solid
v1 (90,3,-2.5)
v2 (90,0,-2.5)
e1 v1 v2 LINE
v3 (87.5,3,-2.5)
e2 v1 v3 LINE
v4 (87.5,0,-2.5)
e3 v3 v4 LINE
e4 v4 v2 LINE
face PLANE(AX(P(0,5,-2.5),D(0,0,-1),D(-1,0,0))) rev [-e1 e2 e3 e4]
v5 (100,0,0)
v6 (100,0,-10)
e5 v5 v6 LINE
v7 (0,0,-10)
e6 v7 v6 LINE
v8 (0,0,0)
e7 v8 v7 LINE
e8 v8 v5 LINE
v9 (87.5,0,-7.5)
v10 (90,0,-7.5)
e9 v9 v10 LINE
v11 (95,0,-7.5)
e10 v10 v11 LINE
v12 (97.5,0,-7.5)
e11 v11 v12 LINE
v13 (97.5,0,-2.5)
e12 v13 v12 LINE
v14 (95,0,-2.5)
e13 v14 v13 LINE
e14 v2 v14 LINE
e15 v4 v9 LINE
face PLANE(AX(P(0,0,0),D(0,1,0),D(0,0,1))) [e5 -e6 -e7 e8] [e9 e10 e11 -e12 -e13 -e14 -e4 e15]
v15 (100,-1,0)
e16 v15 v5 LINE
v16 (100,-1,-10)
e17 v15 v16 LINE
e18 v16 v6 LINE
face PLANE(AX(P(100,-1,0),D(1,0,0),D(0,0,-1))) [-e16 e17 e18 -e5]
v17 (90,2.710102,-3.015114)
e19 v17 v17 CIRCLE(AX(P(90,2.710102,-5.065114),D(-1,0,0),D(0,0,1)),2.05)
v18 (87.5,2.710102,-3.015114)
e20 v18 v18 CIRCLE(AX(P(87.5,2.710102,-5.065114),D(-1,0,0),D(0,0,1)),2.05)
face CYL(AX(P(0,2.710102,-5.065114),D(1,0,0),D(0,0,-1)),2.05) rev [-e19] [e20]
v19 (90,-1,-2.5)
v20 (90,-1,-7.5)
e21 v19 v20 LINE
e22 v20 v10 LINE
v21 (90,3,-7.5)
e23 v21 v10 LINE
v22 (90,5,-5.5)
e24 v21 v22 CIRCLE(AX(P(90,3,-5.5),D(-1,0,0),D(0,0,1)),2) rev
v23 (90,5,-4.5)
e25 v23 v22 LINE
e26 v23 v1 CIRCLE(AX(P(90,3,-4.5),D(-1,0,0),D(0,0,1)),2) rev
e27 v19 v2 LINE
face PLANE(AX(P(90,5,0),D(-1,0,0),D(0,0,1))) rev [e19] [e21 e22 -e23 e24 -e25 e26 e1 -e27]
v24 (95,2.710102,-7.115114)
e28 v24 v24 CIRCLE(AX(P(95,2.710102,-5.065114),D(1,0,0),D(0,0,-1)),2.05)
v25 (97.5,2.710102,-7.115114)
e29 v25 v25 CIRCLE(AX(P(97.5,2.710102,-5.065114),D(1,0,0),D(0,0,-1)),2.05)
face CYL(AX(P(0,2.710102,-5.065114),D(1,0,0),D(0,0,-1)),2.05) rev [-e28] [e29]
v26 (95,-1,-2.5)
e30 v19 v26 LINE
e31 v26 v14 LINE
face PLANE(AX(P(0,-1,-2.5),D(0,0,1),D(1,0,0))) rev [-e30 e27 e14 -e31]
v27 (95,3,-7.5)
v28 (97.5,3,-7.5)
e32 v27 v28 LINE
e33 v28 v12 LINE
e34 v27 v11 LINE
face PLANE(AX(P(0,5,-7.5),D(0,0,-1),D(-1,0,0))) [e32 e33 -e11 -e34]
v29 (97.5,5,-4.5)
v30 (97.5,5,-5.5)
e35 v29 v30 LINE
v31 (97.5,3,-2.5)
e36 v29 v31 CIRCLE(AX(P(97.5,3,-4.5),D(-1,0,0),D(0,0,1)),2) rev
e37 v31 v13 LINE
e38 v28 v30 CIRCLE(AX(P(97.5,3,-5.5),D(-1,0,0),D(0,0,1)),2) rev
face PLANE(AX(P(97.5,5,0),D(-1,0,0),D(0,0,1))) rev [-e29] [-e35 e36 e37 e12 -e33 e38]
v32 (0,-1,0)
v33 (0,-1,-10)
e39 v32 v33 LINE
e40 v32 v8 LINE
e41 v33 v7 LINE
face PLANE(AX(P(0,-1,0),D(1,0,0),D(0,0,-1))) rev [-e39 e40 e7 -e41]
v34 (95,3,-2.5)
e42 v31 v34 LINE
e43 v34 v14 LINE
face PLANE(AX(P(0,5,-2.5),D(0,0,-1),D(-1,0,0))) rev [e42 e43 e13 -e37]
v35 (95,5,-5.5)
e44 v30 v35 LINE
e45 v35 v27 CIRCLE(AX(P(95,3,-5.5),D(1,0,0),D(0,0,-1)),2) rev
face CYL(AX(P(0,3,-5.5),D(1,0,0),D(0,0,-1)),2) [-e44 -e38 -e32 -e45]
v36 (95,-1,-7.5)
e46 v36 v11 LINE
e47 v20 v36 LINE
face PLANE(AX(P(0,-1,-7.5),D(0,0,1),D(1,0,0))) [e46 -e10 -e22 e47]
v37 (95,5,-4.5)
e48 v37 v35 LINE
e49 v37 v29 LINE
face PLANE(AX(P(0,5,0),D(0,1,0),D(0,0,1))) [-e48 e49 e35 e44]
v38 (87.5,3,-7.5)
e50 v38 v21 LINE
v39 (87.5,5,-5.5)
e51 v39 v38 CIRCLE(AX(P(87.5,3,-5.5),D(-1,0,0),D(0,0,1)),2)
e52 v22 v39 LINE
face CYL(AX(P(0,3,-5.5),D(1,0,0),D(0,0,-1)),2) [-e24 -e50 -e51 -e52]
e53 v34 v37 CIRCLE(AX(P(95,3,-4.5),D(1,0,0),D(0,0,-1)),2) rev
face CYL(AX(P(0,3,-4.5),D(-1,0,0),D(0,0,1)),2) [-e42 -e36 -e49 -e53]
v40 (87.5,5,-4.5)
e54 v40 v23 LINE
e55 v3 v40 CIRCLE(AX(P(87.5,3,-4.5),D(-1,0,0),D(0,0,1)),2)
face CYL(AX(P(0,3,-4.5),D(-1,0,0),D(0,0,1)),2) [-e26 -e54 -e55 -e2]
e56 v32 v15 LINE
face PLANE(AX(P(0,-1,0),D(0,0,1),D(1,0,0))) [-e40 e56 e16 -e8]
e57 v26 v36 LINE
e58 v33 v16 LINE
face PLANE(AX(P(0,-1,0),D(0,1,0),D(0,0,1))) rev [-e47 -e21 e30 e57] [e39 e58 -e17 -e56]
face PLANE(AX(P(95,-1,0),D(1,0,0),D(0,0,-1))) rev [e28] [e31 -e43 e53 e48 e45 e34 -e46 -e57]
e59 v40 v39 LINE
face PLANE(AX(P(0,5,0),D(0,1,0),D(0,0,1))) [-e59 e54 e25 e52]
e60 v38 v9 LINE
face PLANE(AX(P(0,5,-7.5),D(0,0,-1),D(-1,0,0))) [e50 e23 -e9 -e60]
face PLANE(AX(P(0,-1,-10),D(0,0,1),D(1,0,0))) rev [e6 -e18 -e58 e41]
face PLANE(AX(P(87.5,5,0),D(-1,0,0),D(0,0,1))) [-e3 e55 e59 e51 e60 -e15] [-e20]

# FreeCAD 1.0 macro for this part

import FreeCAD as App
import Part
import Sketcher

V = App.Vector
Q = App.Units.Quantity


def edges_at(feature, points):
    """Names of the edges that pass closest to the given points."""
    edges = feature.Shape.Edges
    near = lambda p: min(range(len(edges)), key=lambda i: edges[i].distToShape(Part.Vertex(*p))[0])
    return sorted({f"Edge{near(p) + 1}" for p in points})

doc = App.newDocument("Part")
params = doc.addObject("Spreadsheet::Sheet", "Params")
for row, (alias, value) in enumerate([
    ("sketch1_height", "5 mm"),
    ("sketch1_width", "2.5 mm"),
    ("pad1_length", "5 mm"),
    ("sketch2_height", "5 mm"),
    ("sketch2_width", "2.5 mm"),
    ("pad2_length", "5 mm"),
    ("sketch3_width", "100 mm"),
    ("sketch3_width2", "10 mm"),
    ("sketch3_height", "5 mm"),
    ("pad3_length", "1 mm"),
    ("sketch4_height", "5 mm"),
    ("sketch4_width", "2.5 mm"),
    ("pad4_length", "1 mm"),
    ("sketch5_diameter", "4.1 mm"),
    ("fillet_radius", "2 mm"),
], start=1):
    params.set(f"A{row}", alias)
    params.set(f"B{row}", "=" + value)
    params.setAlias(f"B{row}", alias)

body = doc.addObject("PartDesign::Body", "Body")

# Sketch on XZ plane
sketch1 = doc.addObject("Sketcher::SketchObject", "Sketch")
body.addObject(sketch1)
sketch1.AttachmentSupport = (doc.XZ_Plane, [""])
sketch1.MapMode = "FlatFace"
sketch1.addGeometry([
    Part.LineSegment(V(87.5, -7.5, 0), V(87.5, -2.5, 0)),
    Part.LineSegment(V(87.5, -2.5, 0), V(90, -2.5, 0)),
    Part.LineSegment(V(90, -2.5, 0), V(90, -7.5, 0)),
    Part.LineSegment(V(90, -7.5, 0), V(87.5, -7.5, 0)),
], False)
sketch1.addConstraint([
    Sketcher.Constraint("Coincident", 0, 2, 1, 1),
    Sketcher.Constraint("Coincident", 1, 2, 2, 1),
    Sketcher.Constraint("Coincident", 2, 2, 3, 1),
    Sketcher.Constraint("Coincident", 3, 2, 0, 1),
    Sketcher.Constraint("Vertical", 0),
    Sketcher.Constraint("Horizontal", 1),
    Sketcher.Constraint("Vertical", 2),
    Sketcher.Constraint("Horizontal", 3),
    Sketcher.Constraint("DistanceY", 0, 1, 0, 2, Q("5 mm")),
    Sketcher.Constraint("DistanceX", 1, 1, 1, 2, Q("2.5 mm")),
    Sketcher.Constraint("DistanceX", -1, 1, 1, 2, Q("90 mm")),
    Sketcher.Constraint("DistanceY", 0, 2, -1, 1, Q("2.5 mm")),
])
sketch1.setExpression("Constraints[8]", "Params.sketch1_height")
sketch1.setExpression("Constraints[9]", "Params.sketch1_width")
pad1 = doc.addObject("PartDesign::Pad", "Pad")
body.addObject(pad1)
pad1.Profile = sketch1
pad1.setExpression("Length", "Params.pad1_length")
pad1.Reversed = True
body2 = doc.addObject("PartDesign::Body", "Body001")

# Sketch on XZ plane
sketch2 = doc.addObject("Sketcher::SketchObject", "Sketch001")
body2.addObject(sketch2)
sketch2.AttachmentSupport = (doc.getObject("XZ_Plane001"), [""])
sketch2.MapMode = "FlatFace"
sketch2.addGeometry([
    Part.LineSegment(V(95, -7.5, 0), V(95, -2.5, 0)),
    Part.LineSegment(V(95, -2.5, 0), V(97.5, -2.5, 0)),
    Part.LineSegment(V(97.5, -2.5, 0), V(97.5, -7.5, 0)),
    Part.LineSegment(V(97.5, -7.5, 0), V(95, -7.5, 0)),
], False)
sketch2.addConstraint([
    Sketcher.Constraint("Coincident", 0, 2, 1, 1),
    Sketcher.Constraint("Coincident", 1, 2, 2, 1),
    Sketcher.Constraint("Coincident", 2, 2, 3, 1),
    Sketcher.Constraint("Coincident", 3, 2, 0, 1),
    Sketcher.Constraint("Vertical", 0),
    Sketcher.Constraint("Horizontal", 1),
    Sketcher.Constraint("Vertical", 2),
    Sketcher.Constraint("Horizontal", 3),
    Sketcher.Constraint("DistanceY", 0, 1, 0, 2, Q("5 mm")),
    Sketcher.Constraint("DistanceX", 1, 1, 1, 2, Q("2.5 mm")),
    Sketcher.Constraint("DistanceX", -1, 1, 0, 2, Q("95 mm")),
    Sketcher.Constraint("DistanceY", 0, 2, -1, 1, Q("2.5 mm")),
])
sketch2.setExpression("Constraints[8]", "Params.sketch2_height")
sketch2.setExpression("Constraints[9]", "Params.sketch2_width")
pad2 = doc.addObject("PartDesign::Pad", "Pad001")
body2.addObject(pad2)
pad2.Profile = sketch2
pad2.setExpression("Length", "Params.pad2_length")
pad2.Reversed = True
body3 = doc.addObject("PartDesign::Body", "Body002")

# Sketch on XZ plane
sketch3 = doc.addObject("Sketcher::SketchObject", "Sketch002")
body3.addObject(sketch3)
sketch3.AttachmentSupport = (doc.getObject("XZ_Plane002"), [""])
sketch3.MapMode = "FlatFace"
sketch3.addGeometry([
    Part.LineSegment(V(0, -10, 0), V(0, 0, 0)),  # 0
    Part.LineSegment(V(0, 0, 0), V(100, 0, 0)),  # 1
    Part.LineSegment(V(100, 0, 0), V(100, -10, 0)),  # 2
    Part.LineSegment(V(100, -10, 0), V(0, -10, 0)),  # 3
    Part.LineSegment(V(98, -2, 0), V(88, -2, 0)),  # 4
    Part.LineSegment(V(88, -2, 0), V(88, -8, 0)),  # 5
    Part.LineSegment(V(88, -8, 0), V(98, -8, 0)),  # 6
    Part.LineSegment(V(98, -8, 0), V(98, -2, 0)),  # 7
], False)
sketch3.addConstraint([
    Sketcher.Constraint("Coincident", 0, 2, 1, 1),
    Sketcher.Constraint("Coincident", 1, 2, 2, 1),
    Sketcher.Constraint("Coincident", 2, 2, 3, 1),
    Sketcher.Constraint("Coincident", 3, 2, 0, 1),
    Sketcher.Constraint("Coincident", 4, 2, 5, 1),
    Sketcher.Constraint("Coincident", 5, 2, 6, 1),
    Sketcher.Constraint("Coincident", 6, 2, 7, 1),
    Sketcher.Constraint("Coincident", 7, 2, 4, 1),
    Sketcher.Constraint("Vertical", 0),
    Sketcher.Constraint("Horizontal", 1),
    Sketcher.Constraint("Vertical", 2),
    Sketcher.Constraint("Horizontal", 3),
    Sketcher.Constraint("Horizontal", 4),
    Sketcher.Constraint("Vertical", 5),
    Sketcher.Constraint("Horizontal", 6),
    Sketcher.Constraint("Vertical", 7),
    Sketcher.Constraint("Coincident", 0, 2, -1, 1),
    Sketcher.Constraint("Equal", 6, 0),
    Sketcher.Constraint("DistanceX", 1, 1, 1, 2, Q("100 mm")),
    Sketcher.Constraint("DistanceX", 4, 2, 4, 1, Q("10 mm")),
    Sketcher.Constraint("DistanceY", 5, 2, 5, 1, Q("5 mm")),
    Sketcher.Constraint("DistanceX", -1, 1, 4, 2, Q("87.5 mm")),
    Sketcher.Constraint("DistanceY", 4, 2, -1, 1, Q("2.5 mm")),
])
sketch3.setExpression("Constraints[18]", "Params.sketch3_width")
sketch3.setExpression("Constraints[19]", "Params.sketch3_width2")
sketch3.setExpression("Constraints[20]", "Params.sketch3_height")
pad3 = doc.addObject("PartDesign::Pad", "Pad002")
body3.addObject(pad3)
pad3.Profile = sketch3
pad3.setExpression("Length", "Params.pad3_length")
body.AllowCompound = True
doc.recompute()

boolean = doc.addObject("PartDesign::Boolean", "Boolean")
body.addObject(boolean)
boolean.Type = "Fuse"
boolean.addObjects([body2])
doc.recompute()

boolean2 = doc.addObject("PartDesign::Boolean", "Boolean001")
body.addObject(boolean2)
boolean2.Type = "Fuse"
boolean2.addObjects([body3])

# Sketch on XZ plane
sketch4 = doc.addObject("Sketcher::SketchObject", "Sketch003")
body.addObject(sketch4)
sketch4.AttachmentSupport = (doc.XZ_Plane, [""])
sketch4.MapMode = "FlatFace"
sketch4.addGeometry([
    Part.LineSegment(V(87.5, -7.5, 0), V(87.5, -2.5, 0)),  # 0
    Part.LineSegment(V(87.5, -2.5, 0), V(90, -2.5, 0)),  # 1
    Part.LineSegment(V(90, -2.5, 0), V(90, -7.5, 0)),  # 2
    Part.LineSegment(V(90, -7.5, 0), V(87.5, -7.5, 0)),  # 3
    Part.LineSegment(V(95, -7.5, 0), V(95, -2.5, 0)),  # 4
    Part.LineSegment(V(95, -2.5, 0), V(97.5, -2.5, 0)),  # 5
    Part.LineSegment(V(97.5, -2.5, 0), V(97.5, -7.5, 0)),  # 6
    Part.LineSegment(V(97.5, -7.5, 0), V(95, -7.5, 0)),  # 7
], False)
sketch4.addConstraint([
    Sketcher.Constraint("Coincident", 0, 2, 1, 1),
    Sketcher.Constraint("Coincident", 1, 2, 2, 1),
    Sketcher.Constraint("Coincident", 2, 2, 3, 1),
    Sketcher.Constraint("Coincident", 3, 2, 0, 1),
    Sketcher.Constraint("Coincident", 4, 2, 5, 1),
    Sketcher.Constraint("Coincident", 5, 2, 6, 1),
    Sketcher.Constraint("Coincident", 6, 2, 7, 1),
    Sketcher.Constraint("Coincident", 7, 2, 4, 1),
    Sketcher.Constraint("Vertical", 0),
    Sketcher.Constraint("Horizontal", 1),
    Sketcher.Constraint("Vertical", 2),
    Sketcher.Constraint("Horizontal", 3),
    Sketcher.Constraint("Vertical", 4),
    Sketcher.Constraint("Horizontal", 5),
    Sketcher.Constraint("Vertical", 6),
    Sketcher.Constraint("Horizontal", 7),
    Sketcher.Constraint("Horizontal", 1, 2, 4, 2),
    Sketcher.Constraint("Horizontal", 3, 2, 6, 2),
    Sketcher.Constraint("Equal", 3, 5),
    Sketcher.Constraint("DistanceY", 0, 1, 0, 2, Q("5 mm")),
    Sketcher.Constraint("DistanceX", 1, 1, 1, 2, Q("2.5 mm")),
    Sketcher.Constraint("DistanceX", -1, 1, 1, 2, Q("90 mm")),
    Sketcher.Constraint("DistanceX", -1, 1, 4, 2, Q("95 mm")),
    Sketcher.Constraint("DistanceY", 0, 2, -1, 1, Q("2.5 mm")),
])
sketch4.setExpression("Constraints[19]", "Params.sketch4_height")
sketch4.setExpression("Constraints[20]", "Params.sketch4_width")
pad4 = doc.addObject("PartDesign::Pad", "Pad003")
body.addObject(pad4)
pad4.Profile = sketch4
pad4.setExpression("Length", "Params.pad4_length")

# Sketch on YZ plane
sketch5 = doc.addObject("Sketcher::SketchObject", "Sketch004")
body.addObject(sketch5)
sketch5.AttachmentSupport = (doc.YZ_Plane, [""])
sketch5.MapMode = "FlatFace"
sketch5.AttachmentOffset = App.Placement(V(0, 0, 97.5), App.Rotation())
sketch5.addGeometry(Part.Circle(V(2.7, -5.1, 0), V(0, 0, 1), 2), False)
sketch5.addConstraint([
    Sketcher.Constraint("Diameter", 0, Q("4.1 mm")),
    Sketcher.Constraint("DistanceX", -1, 1, 0, 3, Q("2.710102 mm")),
    Sketcher.Constraint("DistanceY", 0, 3, -1, 1, Q("5.065114 mm")),
])
sketch5.setExpression("Constraints[0]", "Params.sketch5_diameter")
pocket1 = doc.addObject("PartDesign::Pocket", "Pocket")
body.addObject(pocket1)
pocket1.Profile = sketch5
pocket1.Type = "ThroughAll"
doc.recompute()

fillet = doc.addObject("PartDesign::Fillet", "Fillet")
body.addObject(fillet)
fillet.Base = (pocket1, edges_at(pocket1, [
    (88.75, 5, -7.5),
    (88.75, 5, -2.5),
    (96.25, 5, -7.5),
    (96.25, 5, -2.5),
]))
fillet.setExpression("Radius", "Params.fillet_radius")

doc.recompute()
